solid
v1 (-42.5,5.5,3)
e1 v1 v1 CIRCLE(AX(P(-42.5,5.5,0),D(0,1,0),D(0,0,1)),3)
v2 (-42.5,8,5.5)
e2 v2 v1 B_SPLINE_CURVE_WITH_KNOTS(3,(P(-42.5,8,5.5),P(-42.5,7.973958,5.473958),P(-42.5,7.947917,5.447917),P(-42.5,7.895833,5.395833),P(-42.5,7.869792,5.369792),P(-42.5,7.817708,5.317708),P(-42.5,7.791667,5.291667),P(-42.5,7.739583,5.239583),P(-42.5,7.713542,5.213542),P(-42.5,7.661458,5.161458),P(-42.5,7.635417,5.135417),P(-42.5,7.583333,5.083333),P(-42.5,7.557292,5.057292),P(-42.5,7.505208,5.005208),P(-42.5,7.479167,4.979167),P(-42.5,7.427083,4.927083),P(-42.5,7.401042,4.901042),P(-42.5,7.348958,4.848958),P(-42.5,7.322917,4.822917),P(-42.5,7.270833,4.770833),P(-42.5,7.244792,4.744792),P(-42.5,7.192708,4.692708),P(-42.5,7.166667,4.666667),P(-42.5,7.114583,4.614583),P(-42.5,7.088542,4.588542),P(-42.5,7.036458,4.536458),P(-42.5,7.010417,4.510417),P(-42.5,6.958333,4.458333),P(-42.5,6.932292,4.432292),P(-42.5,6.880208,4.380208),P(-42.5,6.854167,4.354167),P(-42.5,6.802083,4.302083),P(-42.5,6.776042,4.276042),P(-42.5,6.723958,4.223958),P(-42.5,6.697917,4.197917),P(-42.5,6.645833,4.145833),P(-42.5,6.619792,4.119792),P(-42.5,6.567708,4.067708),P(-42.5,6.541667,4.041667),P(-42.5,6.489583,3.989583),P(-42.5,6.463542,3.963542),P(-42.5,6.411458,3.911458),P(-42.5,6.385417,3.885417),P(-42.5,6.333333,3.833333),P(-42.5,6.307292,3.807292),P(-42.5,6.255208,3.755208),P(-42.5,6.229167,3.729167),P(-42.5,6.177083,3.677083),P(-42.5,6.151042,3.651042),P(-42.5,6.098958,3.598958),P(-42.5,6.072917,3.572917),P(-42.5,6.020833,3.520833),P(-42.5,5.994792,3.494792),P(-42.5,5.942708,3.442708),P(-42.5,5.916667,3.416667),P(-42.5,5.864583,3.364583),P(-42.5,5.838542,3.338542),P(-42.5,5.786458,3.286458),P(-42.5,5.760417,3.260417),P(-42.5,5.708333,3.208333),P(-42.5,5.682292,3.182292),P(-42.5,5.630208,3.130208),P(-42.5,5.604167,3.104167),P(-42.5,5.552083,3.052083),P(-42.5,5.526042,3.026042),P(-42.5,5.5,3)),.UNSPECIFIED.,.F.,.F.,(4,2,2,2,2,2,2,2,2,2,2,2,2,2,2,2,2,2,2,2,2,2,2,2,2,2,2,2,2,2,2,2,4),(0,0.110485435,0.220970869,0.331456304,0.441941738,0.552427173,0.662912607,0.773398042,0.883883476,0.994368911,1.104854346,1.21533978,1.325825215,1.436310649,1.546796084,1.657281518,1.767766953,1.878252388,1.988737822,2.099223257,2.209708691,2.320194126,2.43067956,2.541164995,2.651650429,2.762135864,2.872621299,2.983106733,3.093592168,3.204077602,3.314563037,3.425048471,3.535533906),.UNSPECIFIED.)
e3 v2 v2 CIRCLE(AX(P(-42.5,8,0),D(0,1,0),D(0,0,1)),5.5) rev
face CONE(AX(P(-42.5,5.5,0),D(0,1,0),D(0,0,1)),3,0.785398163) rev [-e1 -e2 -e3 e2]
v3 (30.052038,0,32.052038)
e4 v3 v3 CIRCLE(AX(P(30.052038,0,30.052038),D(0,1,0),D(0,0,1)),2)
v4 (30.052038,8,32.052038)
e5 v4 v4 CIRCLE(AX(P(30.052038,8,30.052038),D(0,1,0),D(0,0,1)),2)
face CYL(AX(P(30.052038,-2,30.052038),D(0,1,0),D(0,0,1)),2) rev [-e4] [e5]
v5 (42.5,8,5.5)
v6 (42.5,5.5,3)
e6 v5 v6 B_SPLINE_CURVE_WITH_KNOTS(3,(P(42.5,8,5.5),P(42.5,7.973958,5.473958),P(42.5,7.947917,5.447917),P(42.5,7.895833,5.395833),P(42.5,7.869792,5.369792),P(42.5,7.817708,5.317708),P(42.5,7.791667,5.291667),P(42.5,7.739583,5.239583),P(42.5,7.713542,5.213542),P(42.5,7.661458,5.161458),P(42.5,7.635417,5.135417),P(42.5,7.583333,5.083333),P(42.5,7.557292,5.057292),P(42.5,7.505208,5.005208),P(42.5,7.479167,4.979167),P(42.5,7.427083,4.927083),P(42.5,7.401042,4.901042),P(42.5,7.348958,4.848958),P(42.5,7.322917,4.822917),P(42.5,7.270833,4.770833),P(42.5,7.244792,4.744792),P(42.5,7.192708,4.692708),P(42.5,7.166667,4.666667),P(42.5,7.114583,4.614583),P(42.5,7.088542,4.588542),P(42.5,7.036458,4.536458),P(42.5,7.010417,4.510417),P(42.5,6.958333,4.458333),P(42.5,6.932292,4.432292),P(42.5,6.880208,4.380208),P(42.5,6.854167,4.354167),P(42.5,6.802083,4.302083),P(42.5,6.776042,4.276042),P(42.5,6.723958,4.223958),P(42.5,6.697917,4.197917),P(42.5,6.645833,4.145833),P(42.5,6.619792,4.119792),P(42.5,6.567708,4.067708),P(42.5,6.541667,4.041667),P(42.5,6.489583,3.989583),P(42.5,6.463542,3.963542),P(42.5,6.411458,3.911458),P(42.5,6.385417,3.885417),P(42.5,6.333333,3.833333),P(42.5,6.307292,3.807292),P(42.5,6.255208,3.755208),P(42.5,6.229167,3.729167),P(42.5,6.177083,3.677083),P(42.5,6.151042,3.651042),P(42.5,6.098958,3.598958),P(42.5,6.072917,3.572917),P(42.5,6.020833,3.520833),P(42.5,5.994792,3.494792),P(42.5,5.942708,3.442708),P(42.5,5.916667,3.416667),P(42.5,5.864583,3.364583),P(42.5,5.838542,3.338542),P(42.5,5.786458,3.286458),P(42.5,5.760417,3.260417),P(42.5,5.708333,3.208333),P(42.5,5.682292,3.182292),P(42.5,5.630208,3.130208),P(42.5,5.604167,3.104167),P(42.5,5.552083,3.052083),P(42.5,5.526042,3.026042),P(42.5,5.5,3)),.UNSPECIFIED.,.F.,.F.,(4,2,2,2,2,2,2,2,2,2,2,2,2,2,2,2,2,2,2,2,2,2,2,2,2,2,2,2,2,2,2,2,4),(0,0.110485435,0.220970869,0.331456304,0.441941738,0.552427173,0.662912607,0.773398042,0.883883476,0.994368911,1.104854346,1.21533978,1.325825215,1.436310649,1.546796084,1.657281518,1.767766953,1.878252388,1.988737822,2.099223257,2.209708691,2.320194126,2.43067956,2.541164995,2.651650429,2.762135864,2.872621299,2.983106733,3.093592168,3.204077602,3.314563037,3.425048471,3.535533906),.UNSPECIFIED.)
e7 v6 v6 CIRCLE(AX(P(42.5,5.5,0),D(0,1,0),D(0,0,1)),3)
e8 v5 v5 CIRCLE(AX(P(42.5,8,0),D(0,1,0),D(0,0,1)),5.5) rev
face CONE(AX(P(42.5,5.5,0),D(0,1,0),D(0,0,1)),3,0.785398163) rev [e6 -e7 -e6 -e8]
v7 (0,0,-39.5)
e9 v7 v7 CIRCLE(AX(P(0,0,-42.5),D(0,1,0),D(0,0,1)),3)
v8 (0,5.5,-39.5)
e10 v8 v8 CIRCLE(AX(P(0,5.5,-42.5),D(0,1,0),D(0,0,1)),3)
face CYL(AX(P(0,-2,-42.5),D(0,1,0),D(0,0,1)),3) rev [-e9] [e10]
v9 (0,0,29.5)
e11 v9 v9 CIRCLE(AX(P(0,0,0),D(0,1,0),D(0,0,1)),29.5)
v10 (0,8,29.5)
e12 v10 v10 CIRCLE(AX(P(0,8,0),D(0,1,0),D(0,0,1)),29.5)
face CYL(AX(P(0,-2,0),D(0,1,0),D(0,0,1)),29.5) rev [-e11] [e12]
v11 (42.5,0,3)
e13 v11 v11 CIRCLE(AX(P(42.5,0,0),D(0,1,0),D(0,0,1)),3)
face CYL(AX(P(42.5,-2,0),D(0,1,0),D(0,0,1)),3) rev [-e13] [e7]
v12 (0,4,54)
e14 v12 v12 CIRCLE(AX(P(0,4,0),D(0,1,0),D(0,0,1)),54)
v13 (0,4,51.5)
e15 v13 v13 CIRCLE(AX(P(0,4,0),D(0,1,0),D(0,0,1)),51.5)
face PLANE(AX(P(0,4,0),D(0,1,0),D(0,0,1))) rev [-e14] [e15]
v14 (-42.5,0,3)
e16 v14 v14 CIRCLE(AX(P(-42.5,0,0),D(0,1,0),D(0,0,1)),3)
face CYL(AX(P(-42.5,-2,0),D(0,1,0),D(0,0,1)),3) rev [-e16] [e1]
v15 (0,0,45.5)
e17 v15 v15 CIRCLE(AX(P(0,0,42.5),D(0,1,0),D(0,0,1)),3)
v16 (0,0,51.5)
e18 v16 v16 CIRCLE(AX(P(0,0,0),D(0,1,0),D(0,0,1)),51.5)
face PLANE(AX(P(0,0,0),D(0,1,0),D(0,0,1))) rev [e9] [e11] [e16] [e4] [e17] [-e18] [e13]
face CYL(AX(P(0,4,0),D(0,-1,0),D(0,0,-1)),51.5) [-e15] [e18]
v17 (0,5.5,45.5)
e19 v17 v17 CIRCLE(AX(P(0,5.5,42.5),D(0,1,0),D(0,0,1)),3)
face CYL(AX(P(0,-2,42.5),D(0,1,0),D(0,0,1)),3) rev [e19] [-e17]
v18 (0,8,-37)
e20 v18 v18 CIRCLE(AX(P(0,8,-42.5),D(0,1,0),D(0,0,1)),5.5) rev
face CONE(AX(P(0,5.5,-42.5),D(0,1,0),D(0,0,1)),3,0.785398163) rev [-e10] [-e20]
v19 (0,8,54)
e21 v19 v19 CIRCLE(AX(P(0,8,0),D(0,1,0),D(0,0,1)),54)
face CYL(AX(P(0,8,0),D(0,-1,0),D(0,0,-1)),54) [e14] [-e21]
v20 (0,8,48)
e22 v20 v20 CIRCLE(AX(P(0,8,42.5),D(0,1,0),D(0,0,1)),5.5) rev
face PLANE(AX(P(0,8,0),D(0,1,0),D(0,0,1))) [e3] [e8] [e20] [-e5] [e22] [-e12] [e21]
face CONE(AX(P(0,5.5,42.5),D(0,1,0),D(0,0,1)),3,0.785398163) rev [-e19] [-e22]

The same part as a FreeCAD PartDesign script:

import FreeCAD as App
import Part
import Sketcher
Q = App.Units.Quantity


def edges_at(feature, points):
    """Names of the edges that pass closest to the given points."""
    edges = feature.Shape.Edges
    near = lambda p: min(range(len(edges)), key=lambda i: edges[i].distToShape(Part.Vertex(*p))[0])
    return sorted({f"Edge{near(p) + 1}" for p in points})

doc = App.newDocument("Part")
body = doc.addObject("PartDesign::Body", "Body")

sketch1 = doc.addObject("Sketcher::SketchObject", "Sketch")
body.addObject(sketch1)
sketch1.AttachmentSupport = (doc.XZ_Plane, [""])
sketch1.MapMode = "FlatFace"
sketch1.addGeometry(Part.Circle(App.Vector(0, 0, 0), App.Vector(0, 0, 1), 52), False)
sketch1.addConstraint(Sketcher.Constraint("Coincident", 0, 3, -1, 1))
sketch1.addConstraint(Sketcher.Constraint("Diameter", 0, Q("103 mm")))
pad1 = doc.addObject("PartDesign::Pad", "Pad")
body.addObject(pad1)
pad1.Profile = sketch1
pad1.Length = 4
pad1.Reversed = True

sketch2 = doc.addObject("Sketcher::SketchObject", "Sketch001")
body.addObject(sketch2)
sketch2.AttachmentSupport = (doc.XZ_Plane, [""])
sketch2.MapMode = "FlatFace"
sketch2.AttachmentOffset = App.Placement(App.Vector(0, 0, -4), App.Rotation())
sketch2.addGeometry(Part.Circle(App.Vector(0, 0, 0), App.Vector(0, 0, 1), 54), False)
sketch2.addConstraint(Sketcher.Constraint("Coincident", 0, 3, -1, 1))
sketch2.addConstraint(Sketcher.Constraint("Diameter", 0, Q("108 mm")))
pad2 = doc.addObject("PartDesign::Pad", "Pad001")
body.addObject(pad2)
pad2.Profile = sketch2
pad2.Length = 4
pad2.Reversed = True

sketch3 = doc.addObject("Sketcher::SketchObject", "Sketch002")
body.addObject(sketch3)
sketch3.AttachmentSupport = (doc.XZ_Plane, [""])
sketch3.MapMode = "FlatFace"
sketch3.AttachmentOffset = App.Placement(App.Vector(0, 0, -8), App.Rotation())
sketch3.addGeometry(Part.Circle(App.Vector(0, 0, 0), App.Vector(0, 0, 1), 30), False)
sketch3.addConstraint(Sketcher.Constraint("Coincident", 0, 3, -1, 1))
sketch3.addConstraint(Sketcher.Constraint("Diameter", 0, Q("59 mm")))
pocket1 = doc.addObject("PartDesign::Pocket", "Pocket")
body.addObject(pocket1)
pocket1.Profile = sketch3
pocket1.Length = 10
pocket1.Reversed = True

sketch4 = doc.addObject("Sketcher::SketchObject", "Sketch003")
body.addObject(sketch4)
sketch4.AttachmentSupport = (doc.XZ_Plane, [""])
sketch4.MapMode = "FlatFace"
sketch4.AttachmentOffset = App.Placement(App.Vector(0, 0, -8), App.Rotation())
sketch4.addGeometry(Part.Circle(App.Vector(0, -42.5, 0), App.Vector(0, 0, 1), 3), False)
sketch4.addGeometry(Part.Circle(App.Vector(-42.5, 0, 0), App.Vector(0, 0, 1), 3), False)
sketch4.addGeometry(Part.Circle(App.Vector(0, 42.5, 0), App.Vector(0, 0, 1), 3), False)
sketch4.addGeometry(Part.Circle(App.Vector(42.5, 0, 0), App.Vector(0, 0, 1), 3), False)
sketch4.addConstraint(Sketcher.Constraint("Equal", 0, 1))
sketch4.addConstraint(Sketcher.Constraint("Equal", 1, 2))
sketch4.addConstraint(Sketcher.Constraint("Equal", 2, 3))
sketch4.addConstraint(Sketcher.Constraint("Symmetric", 0, 3, 2, 3, -1, 1))
sketch4.addConstraint(Sketcher.Constraint("Symmetric", 1, 3, 3, 3, -1, 1))
sketch4.addConstraint(Sketcher.Constraint("PointOnObject", 0, 3, -2))
sketch4.addConstraint(Sketcher.Constraint("PointOnObject", 1, 3, -1))
sketch4.addConstraint(Sketcher.Constraint("Diameter", 0, Q("6 mm")))
sketch4.addConstraint(Sketcher.Constraint("DistanceY", 0, 3, 2, 3, Q("85 mm")))
sketch4.addConstraint(Sketcher.Constraint("DistanceX", 1, 3, 3, 3, Q("85 mm")))
pocket2 = doc.addObject("PartDesign::Pocket", "Pocket001")
body.addObject(pocket2)
pocket2.Profile = sketch4
pocket2.Length = 10
pocket2.Reversed = True
doc.recompute()

chamfer = doc.addObject("PartDesign::Chamfer", "Chamfer")
body.addObject(chamfer)
chamfer.Base = (pocket2, edges_at(pocket2, [
    (0, 8, -45.5),
    (-42.5, 8, -3),
    (0, 8, 39.5),
    (42.5, 8, -3),
]))
chamfer.Size = 2.5

sketch5 = doc.addObject("Sketcher::SketchObject", "Sketch004")
body.addObject(sketch5)
sketch5.AttachmentSupport = (doc.XZ_Plane, [""])
sketch5.MapMode = "FlatFace"
sketch5.AttachmentOffset = App.Placement(App.Vector(0, 0, -8), App.Rotation())
sketch5.addGeometry(Part.Circle(App.Vector(30.1, 30.1, 0), App.Vector(0, 0, 1), 2), False)
sketch5.addConstraint(Sketcher.Constraint("Diameter", 0, Q("4 mm")))
sketch5.addConstraint(Sketcher.Constraint("DistanceX", -1, 1, 0, 3, Q("30.052038 mm")))
sketch5.addConstraint(Sketcher.Constraint("DistanceY", -1, 1, 0, 3, Q("30.052038 mm")))
pocket3 = doc.addObject("PartDesign::Pocket", "Pocket002")
body.addObject(pocket3)
pocket3.Profile = sketch5
pocket3.Length = 10
pocket3.Reversed = True

doc.recompute()
